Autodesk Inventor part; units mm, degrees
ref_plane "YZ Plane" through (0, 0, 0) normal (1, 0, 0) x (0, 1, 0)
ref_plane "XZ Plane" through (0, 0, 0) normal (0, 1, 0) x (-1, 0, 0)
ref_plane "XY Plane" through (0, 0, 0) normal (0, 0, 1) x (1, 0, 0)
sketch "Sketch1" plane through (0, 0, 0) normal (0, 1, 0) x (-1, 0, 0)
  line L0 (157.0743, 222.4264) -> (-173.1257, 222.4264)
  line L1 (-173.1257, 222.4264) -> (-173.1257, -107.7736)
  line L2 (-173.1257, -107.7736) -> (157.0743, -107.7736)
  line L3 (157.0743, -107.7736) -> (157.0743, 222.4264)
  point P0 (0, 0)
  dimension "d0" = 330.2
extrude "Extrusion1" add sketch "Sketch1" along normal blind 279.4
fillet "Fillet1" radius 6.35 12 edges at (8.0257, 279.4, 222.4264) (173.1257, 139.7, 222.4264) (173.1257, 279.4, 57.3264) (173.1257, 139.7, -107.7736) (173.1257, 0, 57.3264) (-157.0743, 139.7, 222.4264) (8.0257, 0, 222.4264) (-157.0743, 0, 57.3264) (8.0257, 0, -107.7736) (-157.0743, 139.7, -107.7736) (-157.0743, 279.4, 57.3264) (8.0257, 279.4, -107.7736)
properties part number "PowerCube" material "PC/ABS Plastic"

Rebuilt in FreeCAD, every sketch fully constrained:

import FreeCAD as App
import Part
import Sketcher
Q = App.Units.Quantity

doc = App.newDocument("Part")
body = doc.addObject("PartDesign::Body", "Body")

# Sketch on XZ plane
sketch1 = body.newObject("Sketcher::SketchObject", "Sketch")
sketch1.AttachmentSupport = (doc.getObject("XZ_Plane"), [""])
sketch1.MapMode = "FlatFace"
sketch1.addGeometry([
    Part.LineSegment(App.Vector(-157.0743, -107.7736, 0), App.Vector(-157.0743, 222.4264, 0)),
    Part.LineSegment(App.Vector(-157.0743, 222.4264, 0), App.Vector(173.1257, 222.4264, 0)),
    Part.LineSegment(App.Vector(173.1257, 222.4264, 0), App.Vector(173.1257, -107.7736, 0)),
    Part.LineSegment(App.Vector(173.1257, -107.7736, 0), App.Vector(-157.0743, -107.7736, 0)),
], False)
sketch1.addConstraint([
    Sketcher.Constraint("Coincident", 0, 2, 1, 1),
    Sketcher.Constraint("Coincident", 1, 2, 2, 1),
    Sketcher.Constraint("Coincident", 2, 2, 3, 1),
    Sketcher.Constraint("Coincident", 3, 2, 0, 1),
    Sketcher.Constraint("Vertical", 0),
    Sketcher.Constraint("Horizontal", 1),
    Sketcher.Constraint("Vertical", 2),
    Sketcher.Constraint("Horizontal", 3),
    Sketcher.Constraint("Equal", 3, 0),
    Sketcher.Constraint("DistanceX", 1, 1, 1, 2, Q("13 in")),
    Sketcher.Constraint("DistanceX", 0, 2, -1, 1, 157.0743),
    Sketcher.Constraint("DistanceY", -1, 1, 0, 2, 222.4264),
])
pad1 = body.newObject("PartDesign::Pad", "Pad")
pad1.Profile = sketch1
pad1.Length = Q("11 in")
pad1.Reversed = True
doc.recompute()

fillet = body.newObject("PartDesign::Fillet", "Fillet")
fillet.Base = (pad1, ["Edge1"])
fillet.UseAllEdges = True
fillet.Radius = Q("0.25 in")

doc.recompute()
